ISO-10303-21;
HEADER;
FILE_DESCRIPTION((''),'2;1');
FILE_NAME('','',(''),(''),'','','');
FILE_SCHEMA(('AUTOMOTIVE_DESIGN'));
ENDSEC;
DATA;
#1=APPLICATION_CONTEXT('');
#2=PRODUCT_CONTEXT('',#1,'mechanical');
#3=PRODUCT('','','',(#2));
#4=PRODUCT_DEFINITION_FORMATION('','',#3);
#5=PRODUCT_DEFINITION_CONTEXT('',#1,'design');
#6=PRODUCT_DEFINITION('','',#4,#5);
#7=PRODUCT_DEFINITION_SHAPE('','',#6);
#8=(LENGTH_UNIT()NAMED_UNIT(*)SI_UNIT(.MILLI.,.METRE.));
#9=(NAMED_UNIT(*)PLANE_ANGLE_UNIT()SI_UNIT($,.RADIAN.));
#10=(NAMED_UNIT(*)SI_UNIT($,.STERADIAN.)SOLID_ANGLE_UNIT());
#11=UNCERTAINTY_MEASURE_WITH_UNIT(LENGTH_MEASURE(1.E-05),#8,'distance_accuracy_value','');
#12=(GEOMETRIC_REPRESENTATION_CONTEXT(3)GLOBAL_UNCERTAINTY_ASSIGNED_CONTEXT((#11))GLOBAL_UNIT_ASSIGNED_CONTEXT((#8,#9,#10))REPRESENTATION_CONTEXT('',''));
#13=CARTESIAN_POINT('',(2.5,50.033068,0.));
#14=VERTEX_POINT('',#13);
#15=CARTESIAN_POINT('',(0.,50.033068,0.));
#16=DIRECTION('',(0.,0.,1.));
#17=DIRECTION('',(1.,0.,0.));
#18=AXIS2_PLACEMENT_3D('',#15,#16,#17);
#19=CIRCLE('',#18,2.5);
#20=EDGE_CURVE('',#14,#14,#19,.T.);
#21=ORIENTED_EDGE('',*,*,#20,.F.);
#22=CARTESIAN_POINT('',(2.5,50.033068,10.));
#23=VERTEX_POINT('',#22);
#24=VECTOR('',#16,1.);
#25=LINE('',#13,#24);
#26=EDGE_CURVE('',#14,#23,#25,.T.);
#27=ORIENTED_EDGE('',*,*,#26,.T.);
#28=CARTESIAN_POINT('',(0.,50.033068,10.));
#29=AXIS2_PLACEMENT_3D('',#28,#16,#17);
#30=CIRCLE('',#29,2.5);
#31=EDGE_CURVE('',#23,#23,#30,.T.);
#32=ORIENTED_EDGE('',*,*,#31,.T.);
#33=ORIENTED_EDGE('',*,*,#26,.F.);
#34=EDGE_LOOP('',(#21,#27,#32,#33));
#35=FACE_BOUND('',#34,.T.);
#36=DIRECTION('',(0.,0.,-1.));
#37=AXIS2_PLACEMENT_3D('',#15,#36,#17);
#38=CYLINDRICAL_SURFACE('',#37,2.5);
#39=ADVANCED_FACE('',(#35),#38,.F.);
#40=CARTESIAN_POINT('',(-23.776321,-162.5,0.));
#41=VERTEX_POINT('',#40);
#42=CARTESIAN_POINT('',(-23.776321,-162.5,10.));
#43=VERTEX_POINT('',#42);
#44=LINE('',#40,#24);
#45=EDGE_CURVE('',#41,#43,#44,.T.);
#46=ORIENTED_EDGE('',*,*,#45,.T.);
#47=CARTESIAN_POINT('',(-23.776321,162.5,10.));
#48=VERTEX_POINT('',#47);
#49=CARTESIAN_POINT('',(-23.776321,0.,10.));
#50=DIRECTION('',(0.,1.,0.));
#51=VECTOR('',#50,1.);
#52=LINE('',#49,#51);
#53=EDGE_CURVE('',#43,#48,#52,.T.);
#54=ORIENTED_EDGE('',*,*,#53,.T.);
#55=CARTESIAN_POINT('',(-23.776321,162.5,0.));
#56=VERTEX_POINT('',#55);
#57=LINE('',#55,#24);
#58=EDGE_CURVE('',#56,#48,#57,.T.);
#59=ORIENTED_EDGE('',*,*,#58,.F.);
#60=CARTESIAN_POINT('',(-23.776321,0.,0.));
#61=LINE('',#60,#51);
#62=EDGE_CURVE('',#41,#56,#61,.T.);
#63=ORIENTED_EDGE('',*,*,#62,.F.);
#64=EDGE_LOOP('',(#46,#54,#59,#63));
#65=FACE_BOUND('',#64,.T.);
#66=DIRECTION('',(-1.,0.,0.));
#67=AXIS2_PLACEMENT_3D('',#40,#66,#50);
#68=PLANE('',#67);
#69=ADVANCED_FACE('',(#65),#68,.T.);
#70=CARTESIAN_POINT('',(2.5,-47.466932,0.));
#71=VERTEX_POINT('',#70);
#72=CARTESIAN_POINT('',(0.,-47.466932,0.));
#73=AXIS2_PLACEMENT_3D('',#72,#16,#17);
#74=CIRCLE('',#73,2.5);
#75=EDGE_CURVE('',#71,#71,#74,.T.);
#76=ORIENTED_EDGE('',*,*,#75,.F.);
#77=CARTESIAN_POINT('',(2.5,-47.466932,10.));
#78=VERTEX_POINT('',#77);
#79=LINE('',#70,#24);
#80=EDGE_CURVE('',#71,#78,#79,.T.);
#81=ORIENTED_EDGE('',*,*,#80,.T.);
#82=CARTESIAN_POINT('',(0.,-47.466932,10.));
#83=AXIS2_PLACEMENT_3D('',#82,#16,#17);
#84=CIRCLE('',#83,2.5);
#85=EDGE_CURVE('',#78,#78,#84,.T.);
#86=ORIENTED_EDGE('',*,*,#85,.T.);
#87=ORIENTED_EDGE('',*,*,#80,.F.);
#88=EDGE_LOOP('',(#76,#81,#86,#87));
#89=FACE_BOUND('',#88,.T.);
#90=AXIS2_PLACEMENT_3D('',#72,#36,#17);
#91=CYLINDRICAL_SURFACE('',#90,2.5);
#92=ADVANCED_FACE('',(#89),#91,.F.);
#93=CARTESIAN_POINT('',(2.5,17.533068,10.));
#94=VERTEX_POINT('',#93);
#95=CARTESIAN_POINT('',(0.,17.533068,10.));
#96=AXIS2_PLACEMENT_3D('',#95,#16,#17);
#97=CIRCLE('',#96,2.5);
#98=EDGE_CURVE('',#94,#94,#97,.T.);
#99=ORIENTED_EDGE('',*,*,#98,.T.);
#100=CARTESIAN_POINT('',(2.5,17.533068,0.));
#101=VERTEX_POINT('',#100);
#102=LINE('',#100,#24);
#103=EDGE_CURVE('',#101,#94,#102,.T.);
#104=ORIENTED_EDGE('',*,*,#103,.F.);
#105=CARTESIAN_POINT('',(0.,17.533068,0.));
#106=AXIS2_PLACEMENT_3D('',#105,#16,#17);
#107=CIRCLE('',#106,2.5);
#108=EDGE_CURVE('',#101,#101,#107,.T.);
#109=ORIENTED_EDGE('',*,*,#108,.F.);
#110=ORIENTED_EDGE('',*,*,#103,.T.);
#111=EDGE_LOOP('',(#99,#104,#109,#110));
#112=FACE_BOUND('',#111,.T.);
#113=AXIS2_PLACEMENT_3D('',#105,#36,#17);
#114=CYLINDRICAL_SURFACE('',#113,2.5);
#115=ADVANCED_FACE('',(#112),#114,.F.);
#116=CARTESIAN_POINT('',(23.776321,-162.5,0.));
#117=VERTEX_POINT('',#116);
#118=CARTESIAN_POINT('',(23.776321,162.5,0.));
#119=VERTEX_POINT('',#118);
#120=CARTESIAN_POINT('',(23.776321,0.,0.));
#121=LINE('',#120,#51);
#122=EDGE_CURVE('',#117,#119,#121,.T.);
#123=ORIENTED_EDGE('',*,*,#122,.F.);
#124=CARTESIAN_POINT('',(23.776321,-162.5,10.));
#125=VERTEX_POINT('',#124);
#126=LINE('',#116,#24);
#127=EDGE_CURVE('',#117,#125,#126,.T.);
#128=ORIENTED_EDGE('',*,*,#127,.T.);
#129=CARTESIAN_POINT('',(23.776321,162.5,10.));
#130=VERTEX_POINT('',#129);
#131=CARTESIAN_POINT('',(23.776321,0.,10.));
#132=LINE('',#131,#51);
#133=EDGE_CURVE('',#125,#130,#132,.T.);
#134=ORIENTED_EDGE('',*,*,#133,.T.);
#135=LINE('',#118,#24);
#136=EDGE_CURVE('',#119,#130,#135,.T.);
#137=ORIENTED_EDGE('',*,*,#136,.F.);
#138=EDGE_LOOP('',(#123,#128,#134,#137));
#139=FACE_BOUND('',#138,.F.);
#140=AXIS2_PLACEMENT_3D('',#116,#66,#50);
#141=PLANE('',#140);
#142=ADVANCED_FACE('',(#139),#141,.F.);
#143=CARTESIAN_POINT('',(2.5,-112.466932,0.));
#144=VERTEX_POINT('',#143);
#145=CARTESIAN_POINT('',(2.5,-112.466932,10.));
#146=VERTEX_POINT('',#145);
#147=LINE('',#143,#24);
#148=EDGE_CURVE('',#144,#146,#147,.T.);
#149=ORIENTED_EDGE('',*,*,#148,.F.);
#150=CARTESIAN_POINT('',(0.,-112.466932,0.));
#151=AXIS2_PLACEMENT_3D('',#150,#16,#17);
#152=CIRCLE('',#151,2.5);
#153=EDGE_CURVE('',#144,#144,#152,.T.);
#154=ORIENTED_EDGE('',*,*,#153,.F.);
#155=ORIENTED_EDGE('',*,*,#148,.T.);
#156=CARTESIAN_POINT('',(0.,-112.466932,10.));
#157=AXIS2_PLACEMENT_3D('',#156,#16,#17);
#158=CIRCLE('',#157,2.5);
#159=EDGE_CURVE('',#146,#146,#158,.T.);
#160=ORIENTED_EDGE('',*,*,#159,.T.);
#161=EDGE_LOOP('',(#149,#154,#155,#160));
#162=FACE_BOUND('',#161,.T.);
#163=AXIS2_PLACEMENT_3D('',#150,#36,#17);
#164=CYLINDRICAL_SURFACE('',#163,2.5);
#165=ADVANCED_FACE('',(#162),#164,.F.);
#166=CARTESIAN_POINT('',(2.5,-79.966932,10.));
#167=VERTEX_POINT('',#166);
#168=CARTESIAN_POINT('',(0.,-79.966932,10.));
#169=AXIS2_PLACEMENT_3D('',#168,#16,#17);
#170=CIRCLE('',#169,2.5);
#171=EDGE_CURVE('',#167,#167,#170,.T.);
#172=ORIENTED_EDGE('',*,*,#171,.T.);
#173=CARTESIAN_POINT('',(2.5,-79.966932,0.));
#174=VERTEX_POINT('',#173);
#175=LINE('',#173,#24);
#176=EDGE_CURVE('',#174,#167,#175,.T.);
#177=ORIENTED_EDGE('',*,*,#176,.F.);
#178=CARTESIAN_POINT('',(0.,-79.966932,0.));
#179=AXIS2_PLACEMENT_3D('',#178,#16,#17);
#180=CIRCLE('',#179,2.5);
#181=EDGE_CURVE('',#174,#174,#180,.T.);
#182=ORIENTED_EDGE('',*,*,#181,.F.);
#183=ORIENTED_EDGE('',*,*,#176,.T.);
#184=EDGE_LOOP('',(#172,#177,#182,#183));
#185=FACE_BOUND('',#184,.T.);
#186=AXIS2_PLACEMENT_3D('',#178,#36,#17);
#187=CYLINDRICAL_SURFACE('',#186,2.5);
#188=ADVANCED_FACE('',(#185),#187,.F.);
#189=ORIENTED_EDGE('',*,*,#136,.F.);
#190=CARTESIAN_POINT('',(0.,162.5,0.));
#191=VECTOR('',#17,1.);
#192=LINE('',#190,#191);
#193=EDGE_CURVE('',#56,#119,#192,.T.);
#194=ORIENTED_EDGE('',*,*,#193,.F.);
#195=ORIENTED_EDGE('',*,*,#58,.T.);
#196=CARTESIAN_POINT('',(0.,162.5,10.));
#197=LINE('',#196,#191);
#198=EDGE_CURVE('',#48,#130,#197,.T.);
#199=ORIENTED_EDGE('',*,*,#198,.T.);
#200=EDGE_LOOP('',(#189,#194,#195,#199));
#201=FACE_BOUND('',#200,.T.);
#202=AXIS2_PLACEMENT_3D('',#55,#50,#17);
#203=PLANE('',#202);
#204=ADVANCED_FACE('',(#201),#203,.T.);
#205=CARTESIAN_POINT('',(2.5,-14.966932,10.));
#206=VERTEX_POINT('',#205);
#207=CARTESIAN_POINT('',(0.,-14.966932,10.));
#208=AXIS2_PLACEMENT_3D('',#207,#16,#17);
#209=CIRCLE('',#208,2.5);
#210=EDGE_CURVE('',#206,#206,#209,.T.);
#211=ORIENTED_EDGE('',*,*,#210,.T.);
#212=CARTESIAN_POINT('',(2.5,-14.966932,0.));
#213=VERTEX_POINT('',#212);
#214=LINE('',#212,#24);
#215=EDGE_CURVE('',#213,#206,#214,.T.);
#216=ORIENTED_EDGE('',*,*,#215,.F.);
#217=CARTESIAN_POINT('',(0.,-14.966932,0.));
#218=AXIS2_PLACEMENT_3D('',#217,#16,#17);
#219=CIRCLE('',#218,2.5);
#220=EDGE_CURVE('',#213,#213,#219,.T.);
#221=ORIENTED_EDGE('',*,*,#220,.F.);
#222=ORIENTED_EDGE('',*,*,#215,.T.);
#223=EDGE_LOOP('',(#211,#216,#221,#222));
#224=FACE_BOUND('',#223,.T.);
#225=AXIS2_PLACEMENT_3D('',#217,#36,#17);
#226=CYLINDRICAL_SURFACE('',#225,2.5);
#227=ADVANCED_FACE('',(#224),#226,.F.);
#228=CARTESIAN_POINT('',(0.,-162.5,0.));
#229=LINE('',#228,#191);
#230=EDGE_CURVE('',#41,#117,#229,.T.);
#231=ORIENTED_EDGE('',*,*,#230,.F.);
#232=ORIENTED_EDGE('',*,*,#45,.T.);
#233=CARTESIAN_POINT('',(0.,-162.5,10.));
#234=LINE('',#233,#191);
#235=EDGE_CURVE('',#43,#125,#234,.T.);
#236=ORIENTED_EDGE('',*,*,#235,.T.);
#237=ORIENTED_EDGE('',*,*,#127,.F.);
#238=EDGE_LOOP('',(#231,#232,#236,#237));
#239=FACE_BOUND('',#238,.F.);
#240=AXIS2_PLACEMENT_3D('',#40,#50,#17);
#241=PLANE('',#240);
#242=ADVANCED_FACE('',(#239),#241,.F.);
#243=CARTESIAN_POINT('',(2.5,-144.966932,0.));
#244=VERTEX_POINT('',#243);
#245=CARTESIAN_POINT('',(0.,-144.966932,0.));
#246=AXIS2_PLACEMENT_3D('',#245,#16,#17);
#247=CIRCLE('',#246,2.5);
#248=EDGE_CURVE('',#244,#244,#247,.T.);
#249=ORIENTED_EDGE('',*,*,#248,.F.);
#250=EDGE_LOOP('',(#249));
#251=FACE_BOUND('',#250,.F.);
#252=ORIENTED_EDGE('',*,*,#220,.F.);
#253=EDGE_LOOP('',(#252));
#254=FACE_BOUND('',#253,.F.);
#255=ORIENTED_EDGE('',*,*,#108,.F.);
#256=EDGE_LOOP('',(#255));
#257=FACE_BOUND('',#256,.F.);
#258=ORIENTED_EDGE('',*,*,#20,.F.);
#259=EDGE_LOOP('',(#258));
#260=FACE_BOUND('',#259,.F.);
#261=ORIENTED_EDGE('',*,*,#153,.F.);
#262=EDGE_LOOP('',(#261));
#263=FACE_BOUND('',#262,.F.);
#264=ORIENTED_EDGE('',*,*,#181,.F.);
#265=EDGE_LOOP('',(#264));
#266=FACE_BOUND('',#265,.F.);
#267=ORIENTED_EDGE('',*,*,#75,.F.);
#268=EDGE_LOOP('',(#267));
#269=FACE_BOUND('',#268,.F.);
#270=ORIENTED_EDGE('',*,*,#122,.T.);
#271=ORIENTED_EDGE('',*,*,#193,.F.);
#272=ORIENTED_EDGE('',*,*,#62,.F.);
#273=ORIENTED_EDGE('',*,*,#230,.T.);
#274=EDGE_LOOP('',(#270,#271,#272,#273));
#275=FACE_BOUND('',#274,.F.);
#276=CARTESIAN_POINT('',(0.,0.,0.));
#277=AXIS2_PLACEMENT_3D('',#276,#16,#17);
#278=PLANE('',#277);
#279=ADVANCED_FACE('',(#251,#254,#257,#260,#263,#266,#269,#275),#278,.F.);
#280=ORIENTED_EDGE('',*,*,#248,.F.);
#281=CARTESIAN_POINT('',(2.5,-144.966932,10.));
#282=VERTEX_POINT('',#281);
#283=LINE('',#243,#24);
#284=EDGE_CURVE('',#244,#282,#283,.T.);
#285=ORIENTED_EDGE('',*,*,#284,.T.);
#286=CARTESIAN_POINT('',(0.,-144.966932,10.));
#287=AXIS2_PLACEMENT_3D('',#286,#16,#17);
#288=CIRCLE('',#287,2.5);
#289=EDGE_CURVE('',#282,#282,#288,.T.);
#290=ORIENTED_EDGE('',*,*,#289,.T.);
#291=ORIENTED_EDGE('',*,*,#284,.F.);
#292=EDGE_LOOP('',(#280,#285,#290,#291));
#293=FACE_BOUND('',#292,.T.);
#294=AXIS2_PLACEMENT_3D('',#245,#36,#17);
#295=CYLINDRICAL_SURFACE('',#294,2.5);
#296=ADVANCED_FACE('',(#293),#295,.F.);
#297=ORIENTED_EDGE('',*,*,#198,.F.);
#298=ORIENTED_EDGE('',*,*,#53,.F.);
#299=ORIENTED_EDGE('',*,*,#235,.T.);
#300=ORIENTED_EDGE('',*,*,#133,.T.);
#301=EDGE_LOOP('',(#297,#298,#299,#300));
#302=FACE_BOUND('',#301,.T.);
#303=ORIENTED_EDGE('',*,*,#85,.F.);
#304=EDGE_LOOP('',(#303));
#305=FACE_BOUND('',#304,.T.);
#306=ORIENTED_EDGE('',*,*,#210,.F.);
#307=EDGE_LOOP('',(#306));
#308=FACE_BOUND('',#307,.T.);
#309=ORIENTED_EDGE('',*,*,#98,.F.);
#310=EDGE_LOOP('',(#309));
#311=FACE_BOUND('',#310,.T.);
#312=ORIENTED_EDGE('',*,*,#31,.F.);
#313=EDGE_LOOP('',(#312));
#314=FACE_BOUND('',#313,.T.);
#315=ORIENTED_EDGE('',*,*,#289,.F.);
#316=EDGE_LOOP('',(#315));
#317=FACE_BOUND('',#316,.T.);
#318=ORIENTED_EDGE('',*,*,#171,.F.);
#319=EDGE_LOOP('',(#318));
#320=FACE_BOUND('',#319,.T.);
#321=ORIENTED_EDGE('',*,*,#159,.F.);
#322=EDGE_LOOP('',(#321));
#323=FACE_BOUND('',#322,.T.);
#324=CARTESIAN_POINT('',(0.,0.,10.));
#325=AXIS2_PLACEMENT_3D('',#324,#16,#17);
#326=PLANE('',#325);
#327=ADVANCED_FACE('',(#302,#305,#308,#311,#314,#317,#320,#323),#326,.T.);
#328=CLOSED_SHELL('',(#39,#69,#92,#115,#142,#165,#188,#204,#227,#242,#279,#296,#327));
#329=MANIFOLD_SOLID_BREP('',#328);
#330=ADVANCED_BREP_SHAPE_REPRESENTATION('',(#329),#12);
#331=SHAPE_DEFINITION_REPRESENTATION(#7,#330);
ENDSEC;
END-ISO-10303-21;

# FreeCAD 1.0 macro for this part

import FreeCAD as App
import Part
import Sketcher

V = App.Vector
Q = App.Units.Quantity

doc = App.newDocument("Part")
body = doc.addObject("PartDesign::Body", "Body")

sketch1 = body.newObject("Sketcher::SketchObject", "Sketch")
sketch1.AttachmentSupport = (doc.getObject("XY_Plane"), [""])
sketch1.MapMode = "FlatFace"
sketch1.addGeometry([
    Part.LineSegment(V(-23.8, 162.5, 0), V(-23.8, -162.5, 0)),
    Part.LineSegment(V(-23.8, -162.5, 0), V(23.8, -162.5, 0)),
    Part.LineSegment(V(23.8, -162.5, 0), V(23.8, 162.5, 0)),
    Part.LineSegment(V(23.8, 162.5, 0), V(-23.8, 162.5, 0)),
    Part.Circle(V(0, -145, 0), V(0, 0, 1), 2.5),
    Part.Circle(V(0, -112.5, 0), V(0, 0, 1), 2.5),
    Part.Circle(V(0, -80, 0), V(0, 0, 1), 2.5),
    Part.Circle(V(0, -47.5, 0), V(0, 0, 1), 2.5),
    Part.Circle(V(0, -15, 0), V(0, 0, 1), 2.5),
    Part.Circle(V(0, 17.5, 0), V(0, 0, 1), 2.5),
    Part.Circle(V(0, 50, 0), V(0, 0, 1), 2.5),
], False)
sketch1.addConstraint([
    Sketcher.Constraint("Coincident", 0, 2, 1, 1),
    Sketcher.Constraint("Coincident", 1, 2, 2, 1),
    Sketcher.Constraint("Coincident", 2, 2, 3, 1),
    Sketcher.Constraint("Coincident", 3, 2, 0, 1),
    Sketcher.Constraint("Vertical", 0),
    Sketcher.Constraint("Horizontal", 1),
    Sketcher.Constraint("Vertical", 2),
    Sketcher.Constraint("Horizontal", 3),
    Sketcher.Constraint("Equal", 4, 5),
    Sketcher.Constraint("Equal", 5, 6),
    Sketcher.Constraint("Equal", 6, 7),
    Sketcher.Constraint("Equal", 7, 8),
    Sketcher.Constraint("Equal", 8, 9),
    Sketcher.Constraint("Equal", 9, 10),
    Sketcher.Constraint("Symmetric", 0, 2, 2, 2, -1, 1),
    Sketcher.Constraint("PointOnObject", 4, 3, -2),
    Sketcher.Constraint("PointOnObject", 5, 3, -2),
    Sketcher.Constraint("PointOnObject", 6, 3, -2),
    Sketcher.Constraint("PointOnObject", 7, 3, -2),
    Sketcher.Constraint("PointOnObject", 8, 3, -2),
    Sketcher.Constraint("PointOnObject", 9, 3, -2),
    Sketcher.Constraint("PointOnObject", 10, 3, -2),
    Sketcher.Constraint("Diameter", 4, Q("5 mm")),
    Sketcher.Constraint("DistanceY", 0, 2, 0, 1, Q("325 mm")),
    Sketcher.Constraint("DistanceY", 4, 3, 6, 3, Q("65 mm")),
    Sketcher.Constraint("DistanceY", 5, 3, 7, 3, Q("65 mm")),
    Sketcher.Constraint("DistanceY", 6, 3, 8, 3, Q("65 mm")),
    Sketcher.Constraint("DistanceY", 7, 3, 9, 3, Q("65 mm")),
    Sketcher.Constraint("DistanceY", 8, 3, 10, 3, Q("65 mm")),
    Sketcher.Constraint("DistanceY", 4, 3, 5, 3, Q("32.5 mm")),
    Sketcher.Constraint("DistanceX", 1, 1, 1, 2, Q("47.552642 mm")),
    Sketcher.Constraint("DistanceY", 5, 3, -1, 1, Q("112.466932 mm")),
])
pad1 = body.newObject("PartDesign::Pad", "Pad")
pad1.Profile = sketch1
pad1.Length = 10

doc.recompute()
